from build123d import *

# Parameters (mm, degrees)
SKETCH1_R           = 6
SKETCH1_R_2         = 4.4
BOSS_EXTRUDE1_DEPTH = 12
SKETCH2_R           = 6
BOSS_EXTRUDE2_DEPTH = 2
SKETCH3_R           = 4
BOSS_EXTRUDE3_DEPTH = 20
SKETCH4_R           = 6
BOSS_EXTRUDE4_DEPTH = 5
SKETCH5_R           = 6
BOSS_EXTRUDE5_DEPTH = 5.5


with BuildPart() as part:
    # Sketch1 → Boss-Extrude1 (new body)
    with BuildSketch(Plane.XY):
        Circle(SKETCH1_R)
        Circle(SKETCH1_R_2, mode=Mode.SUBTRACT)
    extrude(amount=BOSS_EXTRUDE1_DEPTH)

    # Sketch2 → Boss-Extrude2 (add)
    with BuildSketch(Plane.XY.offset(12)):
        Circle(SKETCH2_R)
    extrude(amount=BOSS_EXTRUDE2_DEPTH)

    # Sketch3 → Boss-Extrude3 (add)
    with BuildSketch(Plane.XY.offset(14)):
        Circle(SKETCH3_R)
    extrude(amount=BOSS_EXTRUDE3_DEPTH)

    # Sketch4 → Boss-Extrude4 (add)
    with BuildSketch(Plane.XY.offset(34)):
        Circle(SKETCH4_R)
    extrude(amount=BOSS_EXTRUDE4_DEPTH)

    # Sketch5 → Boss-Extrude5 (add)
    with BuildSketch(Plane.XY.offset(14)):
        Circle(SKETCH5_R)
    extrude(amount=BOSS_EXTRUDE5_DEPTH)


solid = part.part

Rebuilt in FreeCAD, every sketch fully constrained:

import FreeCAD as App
import Part
import Sketcher

doc = App.newDocument("Part")
body = doc.addObject("PartDesign::Body", "Body")

# Sketch on XY plane
sketch1 = body.newObject("Sketcher::SketchObject", "Sketch")
sketch1.AttachmentSupport = (doc.getObject("XY_Plane"), [""])
sketch1.MapMode = "FlatFace"
sketch1.addGeometry([
    Part.Circle(App.Vector(0, 0, 0), App.Vector(0, 0, 1), 6),
    Part.Circle(App.Vector(0, 0, 0), App.Vector(0, 0, 1), 4.4),
], False)
sketch1.addConstraint([
    Sketcher.Constraint("Coincident", 0, 3, -1, 1),
    Sketcher.Constraint("Coincident", 1, 3, -1, 1),
    Sketcher.Constraint("Diameter", 0, 12.0),
    Sketcher.Constraint("Diameter", 1, 8.8),
])
pad1 = body.newObject("PartDesign::Pad", "Pad")
pad1.Profile = sketch1
pad1.Length = 12

# Sketch on XY plane
sketch2 = body.newObject("Sketcher::SketchObject", "Sketch001")
sketch2.AttachmentSupport = (doc.getObject("XY_Plane"), [""])
sketch2.MapMode = "FlatFace"
sketch2.AttachmentOffset = App.Placement(App.Vector(0, 0, 12), App.Rotation())
sketch2.addGeometry(Part.Circle(App.Vector(0, 0, 0), App.Vector(0, 0, 1), 6), False)
sketch2.addConstraint([
    Sketcher.Constraint("Coincident", 0, 3, -1, 1),
    Sketcher.Constraint("Diameter", 0, 12.0),
])
pad2 = body.newObject("PartDesign::Pad", "Pad001")
pad2.Profile = sketch2
pad2.Length = 2

# Sketch on XY plane
sketch3 = body.newObject("Sketcher::SketchObject", "Sketch002")
sketch3.AttachmentSupport = (doc.getObject("XY_Plane"), [""])
sketch3.MapMode = "FlatFace"
sketch3.AttachmentOffset = App.Placement(App.Vector(0, 0, 14), App.Rotation())
sketch3.addGeometry(Part.Circle(App.Vector(0, 0, 0), App.Vector(0, 0, 1), 4), False)
sketch3.addConstraint([
    Sketcher.Constraint("Coincident", 0, 3, -1, 1),
    Sketcher.Constraint("Diameter", 0, 8.0),
])
pad3 = body.newObject("PartDesign::Pad", "Pad002")
pad3.Profile = sketch3
pad3.Length = 20

# Sketch on XY plane
sketch4 = body.newObject("Sketcher::SketchObject", "Sketch003")
sketch4.AttachmentSupport = (doc.getObject("XY_Plane"), [""])
sketch4.MapMode = "FlatFace"
sketch4.AttachmentOffset = App.Placement(App.Vector(0, 0, 34), App.Rotation())
sketch4.addGeometry(Part.Circle(App.Vector(0, 0, 0), App.Vector(0, 0, 1), 6), False)
sketch4.addConstraint([
    Sketcher.Constraint("Coincident", 0, 3, -1, 1),
    Sketcher.Constraint("Diameter", 0, 12.0),
])
pad4 = body.newObject("PartDesign::Pad", "Pad003")
pad4.Profile = sketch4
pad4.Length = 5

# Sketch on XY plane
sketch5 = body.newObject("Sketcher::SketchObject", "Sketch004")
sketch5.AttachmentSupport = (doc.getObject("XY_Plane"), [""])
sketch5.MapMode = "FlatFace"
sketch5.AttachmentOffset = App.Placement(App.Vector(0, 0, 14), App.Rotation())
sketch5.addGeometry(Part.Circle(App.Vector(0, 0, 0), App.Vector(0, 0, 1), 6), False)
sketch5.addConstraint([
    Sketcher.Constraint("Coincident", 0, 3, -1, 1),
    Sketcher.Constraint("Diameter", 0, 12.0),
])
pad5 = body.newObject("PartDesign::Pad", "Pad004")
pad5.Profile = sketch5
pad5.Length = 5.5

doc.recompute()
